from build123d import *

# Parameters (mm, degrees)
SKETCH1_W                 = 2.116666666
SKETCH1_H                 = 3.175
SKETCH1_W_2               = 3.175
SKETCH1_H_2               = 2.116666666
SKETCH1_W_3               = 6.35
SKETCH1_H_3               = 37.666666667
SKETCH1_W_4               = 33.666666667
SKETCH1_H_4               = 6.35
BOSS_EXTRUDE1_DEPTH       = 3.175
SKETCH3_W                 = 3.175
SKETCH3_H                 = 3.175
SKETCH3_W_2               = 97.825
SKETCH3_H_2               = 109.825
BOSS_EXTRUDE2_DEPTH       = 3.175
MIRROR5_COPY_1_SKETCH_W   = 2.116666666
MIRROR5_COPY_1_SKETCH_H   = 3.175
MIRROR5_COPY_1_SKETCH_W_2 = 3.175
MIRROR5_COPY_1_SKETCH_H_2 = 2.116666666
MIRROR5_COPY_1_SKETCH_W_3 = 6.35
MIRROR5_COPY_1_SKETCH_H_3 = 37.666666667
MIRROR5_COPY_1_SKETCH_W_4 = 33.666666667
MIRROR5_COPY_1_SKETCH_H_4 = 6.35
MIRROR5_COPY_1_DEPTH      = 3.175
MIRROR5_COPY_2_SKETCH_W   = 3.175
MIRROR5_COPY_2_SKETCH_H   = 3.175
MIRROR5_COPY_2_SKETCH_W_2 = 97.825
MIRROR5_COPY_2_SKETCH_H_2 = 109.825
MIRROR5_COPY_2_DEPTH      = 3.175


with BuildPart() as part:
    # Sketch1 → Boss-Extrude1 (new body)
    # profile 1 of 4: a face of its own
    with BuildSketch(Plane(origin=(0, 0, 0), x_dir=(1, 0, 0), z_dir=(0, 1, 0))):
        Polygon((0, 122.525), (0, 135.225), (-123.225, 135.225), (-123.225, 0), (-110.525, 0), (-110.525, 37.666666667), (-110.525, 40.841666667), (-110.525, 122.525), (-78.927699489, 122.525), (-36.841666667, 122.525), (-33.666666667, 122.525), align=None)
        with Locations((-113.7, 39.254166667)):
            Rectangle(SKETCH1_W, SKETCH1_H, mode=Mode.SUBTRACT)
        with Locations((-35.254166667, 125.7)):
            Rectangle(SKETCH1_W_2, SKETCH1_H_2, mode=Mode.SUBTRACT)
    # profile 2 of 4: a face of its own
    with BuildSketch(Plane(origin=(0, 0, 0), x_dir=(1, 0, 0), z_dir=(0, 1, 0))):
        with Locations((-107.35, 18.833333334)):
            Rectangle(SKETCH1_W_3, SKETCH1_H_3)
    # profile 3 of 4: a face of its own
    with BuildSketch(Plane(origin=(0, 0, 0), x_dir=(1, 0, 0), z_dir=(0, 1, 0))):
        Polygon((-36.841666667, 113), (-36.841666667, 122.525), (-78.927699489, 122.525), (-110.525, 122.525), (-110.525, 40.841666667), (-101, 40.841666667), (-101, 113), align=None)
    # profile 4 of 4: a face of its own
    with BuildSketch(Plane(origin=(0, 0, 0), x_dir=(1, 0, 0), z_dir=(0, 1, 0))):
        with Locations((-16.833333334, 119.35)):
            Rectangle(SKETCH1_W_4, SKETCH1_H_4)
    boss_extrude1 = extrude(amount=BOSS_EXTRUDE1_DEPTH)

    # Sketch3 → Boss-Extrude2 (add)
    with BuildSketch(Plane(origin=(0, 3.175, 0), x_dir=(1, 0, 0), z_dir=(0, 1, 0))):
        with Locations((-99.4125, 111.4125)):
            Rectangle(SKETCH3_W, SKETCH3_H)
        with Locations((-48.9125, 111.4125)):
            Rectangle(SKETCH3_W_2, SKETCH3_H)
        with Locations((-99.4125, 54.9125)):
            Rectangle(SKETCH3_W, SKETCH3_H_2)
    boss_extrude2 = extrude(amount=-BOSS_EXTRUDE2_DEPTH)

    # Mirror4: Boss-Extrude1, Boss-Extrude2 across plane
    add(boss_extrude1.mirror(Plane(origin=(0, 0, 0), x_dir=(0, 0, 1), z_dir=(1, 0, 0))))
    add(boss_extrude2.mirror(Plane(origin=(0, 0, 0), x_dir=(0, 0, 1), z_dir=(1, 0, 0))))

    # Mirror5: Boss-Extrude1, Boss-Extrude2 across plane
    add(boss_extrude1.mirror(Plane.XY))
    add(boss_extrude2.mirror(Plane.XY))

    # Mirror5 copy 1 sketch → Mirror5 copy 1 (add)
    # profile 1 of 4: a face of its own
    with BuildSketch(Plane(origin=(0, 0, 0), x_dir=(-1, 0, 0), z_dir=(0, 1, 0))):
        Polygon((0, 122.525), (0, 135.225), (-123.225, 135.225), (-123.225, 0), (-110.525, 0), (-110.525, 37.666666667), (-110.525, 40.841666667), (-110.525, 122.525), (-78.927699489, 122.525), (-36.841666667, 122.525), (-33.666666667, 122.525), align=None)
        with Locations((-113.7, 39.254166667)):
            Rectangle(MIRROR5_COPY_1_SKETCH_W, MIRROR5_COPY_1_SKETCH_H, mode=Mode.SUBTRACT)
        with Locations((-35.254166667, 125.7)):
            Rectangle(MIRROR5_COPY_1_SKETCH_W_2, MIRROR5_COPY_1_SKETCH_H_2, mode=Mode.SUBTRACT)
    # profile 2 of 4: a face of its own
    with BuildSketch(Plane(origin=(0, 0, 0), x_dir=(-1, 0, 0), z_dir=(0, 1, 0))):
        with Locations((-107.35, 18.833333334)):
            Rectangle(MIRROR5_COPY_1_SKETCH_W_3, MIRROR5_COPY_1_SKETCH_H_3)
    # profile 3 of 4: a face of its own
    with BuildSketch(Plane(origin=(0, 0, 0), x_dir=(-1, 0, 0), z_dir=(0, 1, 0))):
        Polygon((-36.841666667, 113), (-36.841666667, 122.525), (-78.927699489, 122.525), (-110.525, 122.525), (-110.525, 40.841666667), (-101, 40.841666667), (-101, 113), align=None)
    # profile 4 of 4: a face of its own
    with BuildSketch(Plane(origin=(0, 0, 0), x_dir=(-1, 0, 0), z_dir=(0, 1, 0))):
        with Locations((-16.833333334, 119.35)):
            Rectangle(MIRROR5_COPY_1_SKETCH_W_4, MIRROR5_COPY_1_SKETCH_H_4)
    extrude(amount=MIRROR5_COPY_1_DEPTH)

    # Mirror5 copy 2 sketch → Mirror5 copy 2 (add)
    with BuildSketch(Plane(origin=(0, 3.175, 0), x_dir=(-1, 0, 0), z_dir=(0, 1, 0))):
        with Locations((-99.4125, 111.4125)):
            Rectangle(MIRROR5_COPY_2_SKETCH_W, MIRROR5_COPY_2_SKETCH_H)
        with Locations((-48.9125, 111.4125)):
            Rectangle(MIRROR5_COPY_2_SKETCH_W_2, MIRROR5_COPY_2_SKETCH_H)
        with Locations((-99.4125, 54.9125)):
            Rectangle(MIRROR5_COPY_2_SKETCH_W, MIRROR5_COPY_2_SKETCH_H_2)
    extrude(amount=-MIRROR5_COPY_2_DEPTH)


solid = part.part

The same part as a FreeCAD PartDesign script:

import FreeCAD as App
import Part
import Sketcher
Q = App.Units.Quantity


def add_polygon(sketch, points):
    """Adds a closed chain of lines whose ends are joined by coincident constraints."""
    first, n = sketch.GeometryCount, len(points)
    for a, b in zip(points, points[1:] + points[:1]):
        sketch.addGeometry(Part.LineSegment(App.Vector(*a, 0), App.Vector(*b, 0)), False)
    for i in range(n):
        sketch.addConstraint(Sketcher.Constraint("Coincident", first + i, 2, first + (i + 1) % n, 1))

doc = App.newDocument("Part")
body = doc.addObject("PartDesign::Body", "Body")

# Sketch on XZ plane
sketch1 = body.newObject("Sketcher::SketchObject", "Sketch")
sketch1.AttachmentSupport = (doc.getObject("XZ_Plane"), [""])
sketch1.MapMode = "FlatFace"
add_polygon(sketch1, [(0, -122.5), (0, -135.2), (-123.2, -135.2), (-123.2, 0), (-110.5, 0), (-104.2, 0), (-104.2, -37.7), (-110.5, -37.7), (-110.5, -40.8), (-101, -40.8), (-101, -113), (-36.8, -113), (-36.8, -122.5), (-33.7, -122.5), (-33.7, -116.2), (0, -116.2)])  # lines 0-15
add_polygon(sketch1, [(-112.6, -37.7), (-114.8, -37.7), (-114.8, -40.8), (-112.6, -40.8)])  # lines 16-19
add_polygon(sketch1, [(-33.7, -124.6), (-36.8, -124.6), (-36.8, -126.8), (-33.7, -126.8)])  # lines 20-23
sketch1.addConstraint([
    Sketcher.Constraint("Vertical", 0),
    Sketcher.Constraint("Horizontal", 1),
    Sketcher.Constraint("Vertical", 2),
    Sketcher.Constraint("Horizontal", 3),
    Sketcher.Constraint("Horizontal", 4),
    Sketcher.Constraint("Vertical", 5),
    Sketcher.Constraint("Horizontal", 6),
    Sketcher.Constraint("Vertical", 7),
    Sketcher.Constraint("Horizontal", 8),
    Sketcher.Constraint("Vertical", 9),
    Sketcher.Constraint("Horizontal", 10),
    Sketcher.Constraint("Vertical", 11),
    Sketcher.Constraint("Horizontal", 12),
    Sketcher.Constraint("Vertical", 13),
    Sketcher.Constraint("Horizontal", 14),
    Sketcher.Constraint("Vertical", 15),
    Sketcher.Constraint("Horizontal", 16),
    Sketcher.Constraint("Vertical", 17),
    Sketcher.Constraint("Horizontal", 18),
    Sketcher.Constraint("Vertical", 19),
    Sketcher.Constraint("Horizontal", 20),
    Sketcher.Constraint("Vertical", 21),
    Sketcher.Constraint("Horizontal", 22),
    Sketcher.Constraint("Vertical", 23),
    Sketcher.Constraint("PointOnObject", 0, 2, -2),
    Sketcher.Constraint("PointOnObject", 2, 2, -1),
    Sketcher.Constraint("Horizontal", 12, 2, 15, 2),
    Sketcher.Constraint("Horizontal", 6, 2, 16, 2),
    Sketcher.Constraint("Horizontal", 8, 2, 17, 2),
    Sketcher.Constraint("Vertical", 3, 2, 6, 2),
    Sketcher.Constraint("Vertical", 11, 2, 20, 2),
    Sketcher.Constraint("Vertical", 13, 2, 22, 2),
    Sketcher.Constraint("Equal", 3, 0),
    Sketcher.Constraint("Equal", 22, 7),
    Sketcher.Constraint("Equal", 8, 11),
    Sketcher.Constraint("Equal", 6, 13),
    Sketcher.Constraint("Equal", 18, 21),
    Sketcher.Constraint("DistanceX", 3, 1, 3, 2, Q("0.5 in")),
    Sketcher.Constraint("DistanceX", 4, 1, 4, 2, Q("0.25 in")),
    Sketcher.Constraint("DistanceX", 8, 1, 8, 2, Q("0.375 in")),
    Sketcher.Constraint("DistanceX", 12, 1, 12, 2, Q("0.125 in")),
    Sketcher.Constraint("DistanceX", 1, 2, 1, 1, 123.225),
    Sketcher.Constraint("DistanceY", 2, 1, 2, 2, 135.225),
    Sketcher.Constraint("DistanceX", 10, 1, 10, 2, 64.158333),
    Sketcher.Constraint("DistanceX", 16, 2, 16, 1, 2.116667),
    Sketcher.Constraint("DistanceY", 5, 2, 5, 1, 37.666667),
    Sketcher.Constraint("DistanceX", 16, 2, -1, 1, 114.758333),
    Sketcher.Constraint("DistanceY", 20, 2, -1, 1, 124.641667),
])
pad1 = body.newObject("PartDesign::Pad", "Pad")
pad1.Profile = sketch1
pad1.Length = Q("0.125 in")
pad1.Reversed = True

# Sketch on XZ plane
sketch2 = body.newObject("Sketcher::SketchObject", "Sketch001")
sketch2.AttachmentSupport = (doc.getObject("XZ_Plane"), [""])
sketch2.MapMode = "FlatFace"
sketch2.AttachmentOffset = App.Placement(App.Vector(0, 0, -0.125 * 25.4), App.Rotation())
add_polygon(sketch2, [(-101, -113), (-101, 0), (-97.8, 0), (-97.8, -109.8), (0, -109.8), (0, -113)])  # lines 0-5
sketch2.addConstraint([
    Sketcher.Constraint("Vertical", 0),
    Sketcher.Constraint("Horizontal", 1),
    Sketcher.Constraint("Vertical", 2),
    Sketcher.Constraint("Horizontal", 3),
    Sketcher.Constraint("Vertical", 4),
    Sketcher.Constraint("Horizontal", 5),
    Sketcher.Constraint("PointOnObject", 0, 2, -1),
    Sketcher.Constraint("PointOnObject", 3, 2, -2),
    Sketcher.Constraint("Equal", 1, 4),
    Sketcher.Constraint("DistanceX", 1, 1, 1, 2, Q("0.125 in")),
    Sketcher.Constraint("DistanceX", 3, 1, 3, 2, 97.825),
    Sketcher.Constraint("DistanceY", 0, 1, 0, 2, 113.0),
])
pad2 = body.newObject("PartDesign::Pad", "Pad001")
pad2.Profile = sketch2
pad2.Length = Q("0.125 in")
doc.recompute()

mirrored = body.newObject("PartDesign::Mirrored", "Mirrored")
mirrored.Originals = [pad1, pad2]
mirrored.MirrorPlane = (doc.getObject("YZ_Plane"), [""])
body.Tip = mirrored
doc.recompute()

mirrored2 = body.newObject("PartDesign::Mirrored", "Mirrored001")
mirrored2.Originals = [pad1, pad2]
mirrored2.MirrorPlane = (doc.getObject("XY_Plane"), [""])
body.Tip = mirrored2

# Sketch on XZ plane
sketch3 = body.newObject("Sketcher::SketchObject", "Sketch002")
sketch3.AttachmentSupport = (doc.getObject("XZ_Plane"), [""])
sketch3.MapMode = "FlatFace"
add_polygon(sketch3, [(0, 122.5), (0, 135.2), (123.2, 135.2), (123.2, 0), (110.5, 0), (104.2, 0), (104.2, 37.7), (110.5, 37.7), (110.5, 40.8), (101, 40.8), (101, 113), (36.8, 113), (36.8, 122.5), (33.7, 122.5), (33.7, 116.2), (0, 116.2)])  # lines 0-15
add_polygon(sketch3, [(112.6, 37.7), (114.8, 37.7), (114.8, 40.8), (112.6, 40.8)])  # lines 16-19
add_polygon(sketch3, [(33.7, 124.6), (36.8, 124.6), (36.8, 126.8), (33.7, 126.8)])  # lines 20-23
sketch3.addConstraint([
    Sketcher.Constraint("Vertical", 0),
    Sketcher.Constraint("Horizontal", 1),
    Sketcher.Constraint("Vertical", 2),
    Sketcher.Constraint("Horizontal", 3),
    Sketcher.Constraint("Horizontal", 4),
    Sketcher.Constraint("Vertical", 5),
    Sketcher.Constraint("Horizontal", 6),
    Sketcher.Constraint("Vertical", 7),
    Sketcher.Constraint("Horizontal", 8),
    Sketcher.Constraint("Vertical", 9),
    Sketcher.Constraint("Horizontal", 10),
    Sketcher.Constraint("Vertical", 11),
    Sketcher.Constraint("Horizontal", 12),
    Sketcher.Constraint("Vertical", 13),
    Sketcher.Constraint("Horizontal", 14),
    Sketcher.Constraint("Vertical", 15),
    Sketcher.Constraint("Horizontal", 16),
    Sketcher.Constraint("Vertical", 17),
    Sketcher.Constraint("Horizontal", 18),
    Sketcher.Constraint("Vertical", 19),
    Sketcher.Constraint("Horizontal", 20),
    Sketcher.Constraint("Vertical", 21),
    Sketcher.Constraint("Horizontal", 22),
    Sketcher.Constraint("Vertical", 23),
    Sketcher.Constraint("PointOnObject", 0, 2, -2),
    Sketcher.Constraint("PointOnObject", 2, 2, -1),
    Sketcher.Constraint("Horizontal", 12, 2, 15, 2),
    Sketcher.Constraint("Horizontal", 6, 2, 16, 2),
    Sketcher.Constraint("Horizontal", 8, 2, 17, 2),
    Sketcher.Constraint("Vertical", 3, 2, 6, 2),
    Sketcher.Constraint("Vertical", 11, 2, 20, 2),
    Sketcher.Constraint("Vertical", 13, 2, 22, 2),
    Sketcher.Constraint("Equal", 3, 0),
    Sketcher.Constraint("Equal", 22, 7),
    Sketcher.Constraint("Equal", 8, 11),
    Sketcher.Constraint("Equal", 6, 13),
    Sketcher.Constraint("Equal", 18, 21),
    Sketcher.Constraint("DistanceX", 3, 2, 3, 1, Q("0.5 in")),
    Sketcher.Constraint("DistanceX", 4, 2, 4, 1, Q("0.25 in")),
    Sketcher.Constraint("DistanceX", 8, 2, 8, 1, Q("0.375 in")),
    Sketcher.Constraint("DistanceX", 12, 2, 12, 1, Q("0.125 in")),
    Sketcher.Constraint("DistanceX", 1, 1, 1, 2, 123.225),
    Sketcher.Constraint("DistanceY", 2, 2, 2, 1, 135.225),
    Sketcher.Constraint("DistanceX", 10, 2, 10, 1, 64.158333),
    Sketcher.Constraint("DistanceX", 16, 1, 16, 2, 2.116667),
    Sketcher.Constraint("DistanceY", 5, 1, 5, 2, 37.666667),
    Sketcher.Constraint("DistanceX", -1, 1, 16, 2, 114.758333),
    Sketcher.Constraint("DistanceY", -1, 1, 20, 2, 124.641667),
])
pad3 = body.newObject("PartDesign::Pad", "Pad002")
pad3.Profile = sketch3
pad3.Length = Q("0.125 in")
pad3.Reversed = True

# Sketch on XZ plane
sketch4 = body.newObject("Sketcher::SketchObject", "Sketch003")
sketch4.AttachmentSupport = (doc.getObject("XZ_Plane"), [""])
sketch4.MapMode = "FlatFace"
sketch4.AttachmentOffset = App.Placement(App.Vector(0, 0, -0.125 * 25.4), App.Rotation())
add_polygon(sketch4, [(101, 113), (101, 0), (97.8, 0), (97.8, 109.8), (0, 109.8), (0, 113)])  # lines 0-5
sketch4.addConstraint([
    Sketcher.Constraint("Vertical", 0),
    Sketcher.Constraint("Horizontal", 1),
    Sketcher.Constraint("Vertical", 2),
    Sketcher.Constraint("Horizontal", 3),
    Sketcher.Constraint("Vertical", 4),
    Sketcher.Constraint("Horizontal", 5),
    Sketcher.Constraint("PointOnObject", 0, 2, -1),
    Sketcher.Constraint("PointOnObject", 3, 2, -2),
    Sketcher.Constraint("Equal", 1, 4),
    Sketcher.Constraint("DistanceX", 1, 2, 1, 1, Q("0.125 in")),
    Sketcher.Constraint("DistanceX", 3, 2, 3, 1, 97.825),
    Sketcher.Constraint("DistanceY", 0, 2, 0, 1, 113.0),
])
pad4 = body.newObject("PartDesign::Pad", "Pad003")
pad4.Profile = sketch4
pad4.Length = Q("0.125 in")

doc.recompute()
